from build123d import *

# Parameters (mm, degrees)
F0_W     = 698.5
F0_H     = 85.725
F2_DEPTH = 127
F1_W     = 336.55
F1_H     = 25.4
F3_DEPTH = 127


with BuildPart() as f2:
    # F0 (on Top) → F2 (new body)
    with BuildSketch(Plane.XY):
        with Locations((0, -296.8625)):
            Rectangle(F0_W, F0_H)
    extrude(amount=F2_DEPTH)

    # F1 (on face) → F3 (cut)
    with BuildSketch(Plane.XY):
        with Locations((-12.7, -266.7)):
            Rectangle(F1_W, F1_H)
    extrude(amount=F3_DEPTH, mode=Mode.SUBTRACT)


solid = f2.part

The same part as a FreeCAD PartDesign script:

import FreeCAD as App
import Part
import Sketcher
Q = App.Units.Quantity

doc = App.newDocument("Part")
body = doc.addObject("PartDesign::Body", "Body")

sketch1 = body.newObject("Sketcher::SketchObject", "Sketch")
sketch1.AttachmentSupport = (doc.getObject("XY_Plane"), [""])
sketch1.MapMode = "FlatFace"
sketch1.addGeometry(Part.LineSegment(App.Vector(-349, -254, 0), App.Vector(-349, -340, 0)), False)
sketch1.addGeometry(Part.LineSegment(App.Vector(-349, -340, 0), App.Vector(349, -340, 0)), False)
sketch1.addGeometry(Part.LineSegment(App.Vector(349, -340, 0), App.Vector(349, -254, 0)), False)
sketch1.addGeometry(Part.LineSegment(App.Vector(349, -254, 0), App.Vector(-349, -254, 0)), False)
sketch1.addConstraint(Sketcher.Constraint("Coincident", 0, 2, 1, 1))
sketch1.addConstraint(Sketcher.Constraint("Coincident", 1, 2, 2, 1))
sketch1.addConstraint(Sketcher.Constraint("Coincident", 2, 2, 3, 1))
sketch1.addConstraint(Sketcher.Constraint("Coincident", 3, 2, 0, 1))
sketch1.addConstraint(Sketcher.Constraint("Vertical", 0))
sketch1.addConstraint(Sketcher.Constraint("Horizontal", 1))
sketch1.addConstraint(Sketcher.Constraint("Vertical", 2))
sketch1.addConstraint(Sketcher.Constraint("Horizontal", 3))
sketch1.addConstraint(Sketcher.Constraint("DistanceX", 1, 1, 1, 2, Q("27.5 in")))
sketch1.addConstraint(Sketcher.Constraint("DistanceY", 2, 2, -1, 1, Q("10 in")))
sketch1.addConstraint(Sketcher.Constraint("DistanceY", 0, 2, 0, 1, Q("3.375 in")))
sketch1.addConstraint(Sketcher.Constraint("DistanceX", 0, 2, -1, 1, Q("13.75 in")))
pad1 = body.newObject("PartDesign::Pad", "Pad")
pad1.Profile = sketch1
pad1.Length = Q("5 in")

sketch2 = body.newObject("Sketcher::SketchObject", "Sketch001")
sketch2.AttachmentSupport = (doc.getObject("XY_Plane"), [""])
sketch2.MapMode = "FlatFace"
sketch2.addGeometry(Part.LineSegment(App.Vector(-181, -254, 0), App.Vector(-181, -279, 0)), False)
sketch2.addGeometry(Part.LineSegment(App.Vector(-181, -279, 0), App.Vector(156, -279, 0)), False)
sketch2.addGeometry(Part.LineSegment(App.Vector(156, -279, 0), App.Vector(156, -254, 0)), False)
sketch2.addGeometry(Part.LineSegment(App.Vector(156, -254, 0), App.Vector(-181, -254, 0)), False)
sketch2.addConstraint(Sketcher.Constraint("Coincident", 0, 2, 1, 1))
sketch2.addConstraint(Sketcher.Constraint("Coincident", 1, 2, 2, 1))
sketch2.addConstraint(Sketcher.Constraint("Coincident", 2, 2, 3, 1))
sketch2.addConstraint(Sketcher.Constraint("Coincident", 3, 2, 0, 1))
sketch2.addConstraint(Sketcher.Constraint("Vertical", 0))
sketch2.addConstraint(Sketcher.Constraint("Horizontal", 1))
sketch2.addConstraint(Sketcher.Constraint("Vertical", 2))
sketch2.addConstraint(Sketcher.Constraint("Horizontal", 3))
sketch2.addConstraint(Sketcher.Constraint("DistanceY", 0, 2, 0, 1, Q("1 in")))
sketch2.addConstraint(Sketcher.Constraint("DistanceY", 0, 2, -1, 1, Q("11 in")))
sketch2.addConstraint(Sketcher.Constraint("DistanceX", 1, 1, 1, 2, Q("13.25 in")))
sketch2.addConstraint(Sketcher.Constraint("DistanceX", 0, 2, -1, 1, Q("7.125 in")))
pocket1 = body.newObject("PartDesign::Pocket", "Pocket")
pocket1.Profile = sketch2
pocket1.Length = Q("5 in")
pocket1.Reversed = True

doc.recompute()
